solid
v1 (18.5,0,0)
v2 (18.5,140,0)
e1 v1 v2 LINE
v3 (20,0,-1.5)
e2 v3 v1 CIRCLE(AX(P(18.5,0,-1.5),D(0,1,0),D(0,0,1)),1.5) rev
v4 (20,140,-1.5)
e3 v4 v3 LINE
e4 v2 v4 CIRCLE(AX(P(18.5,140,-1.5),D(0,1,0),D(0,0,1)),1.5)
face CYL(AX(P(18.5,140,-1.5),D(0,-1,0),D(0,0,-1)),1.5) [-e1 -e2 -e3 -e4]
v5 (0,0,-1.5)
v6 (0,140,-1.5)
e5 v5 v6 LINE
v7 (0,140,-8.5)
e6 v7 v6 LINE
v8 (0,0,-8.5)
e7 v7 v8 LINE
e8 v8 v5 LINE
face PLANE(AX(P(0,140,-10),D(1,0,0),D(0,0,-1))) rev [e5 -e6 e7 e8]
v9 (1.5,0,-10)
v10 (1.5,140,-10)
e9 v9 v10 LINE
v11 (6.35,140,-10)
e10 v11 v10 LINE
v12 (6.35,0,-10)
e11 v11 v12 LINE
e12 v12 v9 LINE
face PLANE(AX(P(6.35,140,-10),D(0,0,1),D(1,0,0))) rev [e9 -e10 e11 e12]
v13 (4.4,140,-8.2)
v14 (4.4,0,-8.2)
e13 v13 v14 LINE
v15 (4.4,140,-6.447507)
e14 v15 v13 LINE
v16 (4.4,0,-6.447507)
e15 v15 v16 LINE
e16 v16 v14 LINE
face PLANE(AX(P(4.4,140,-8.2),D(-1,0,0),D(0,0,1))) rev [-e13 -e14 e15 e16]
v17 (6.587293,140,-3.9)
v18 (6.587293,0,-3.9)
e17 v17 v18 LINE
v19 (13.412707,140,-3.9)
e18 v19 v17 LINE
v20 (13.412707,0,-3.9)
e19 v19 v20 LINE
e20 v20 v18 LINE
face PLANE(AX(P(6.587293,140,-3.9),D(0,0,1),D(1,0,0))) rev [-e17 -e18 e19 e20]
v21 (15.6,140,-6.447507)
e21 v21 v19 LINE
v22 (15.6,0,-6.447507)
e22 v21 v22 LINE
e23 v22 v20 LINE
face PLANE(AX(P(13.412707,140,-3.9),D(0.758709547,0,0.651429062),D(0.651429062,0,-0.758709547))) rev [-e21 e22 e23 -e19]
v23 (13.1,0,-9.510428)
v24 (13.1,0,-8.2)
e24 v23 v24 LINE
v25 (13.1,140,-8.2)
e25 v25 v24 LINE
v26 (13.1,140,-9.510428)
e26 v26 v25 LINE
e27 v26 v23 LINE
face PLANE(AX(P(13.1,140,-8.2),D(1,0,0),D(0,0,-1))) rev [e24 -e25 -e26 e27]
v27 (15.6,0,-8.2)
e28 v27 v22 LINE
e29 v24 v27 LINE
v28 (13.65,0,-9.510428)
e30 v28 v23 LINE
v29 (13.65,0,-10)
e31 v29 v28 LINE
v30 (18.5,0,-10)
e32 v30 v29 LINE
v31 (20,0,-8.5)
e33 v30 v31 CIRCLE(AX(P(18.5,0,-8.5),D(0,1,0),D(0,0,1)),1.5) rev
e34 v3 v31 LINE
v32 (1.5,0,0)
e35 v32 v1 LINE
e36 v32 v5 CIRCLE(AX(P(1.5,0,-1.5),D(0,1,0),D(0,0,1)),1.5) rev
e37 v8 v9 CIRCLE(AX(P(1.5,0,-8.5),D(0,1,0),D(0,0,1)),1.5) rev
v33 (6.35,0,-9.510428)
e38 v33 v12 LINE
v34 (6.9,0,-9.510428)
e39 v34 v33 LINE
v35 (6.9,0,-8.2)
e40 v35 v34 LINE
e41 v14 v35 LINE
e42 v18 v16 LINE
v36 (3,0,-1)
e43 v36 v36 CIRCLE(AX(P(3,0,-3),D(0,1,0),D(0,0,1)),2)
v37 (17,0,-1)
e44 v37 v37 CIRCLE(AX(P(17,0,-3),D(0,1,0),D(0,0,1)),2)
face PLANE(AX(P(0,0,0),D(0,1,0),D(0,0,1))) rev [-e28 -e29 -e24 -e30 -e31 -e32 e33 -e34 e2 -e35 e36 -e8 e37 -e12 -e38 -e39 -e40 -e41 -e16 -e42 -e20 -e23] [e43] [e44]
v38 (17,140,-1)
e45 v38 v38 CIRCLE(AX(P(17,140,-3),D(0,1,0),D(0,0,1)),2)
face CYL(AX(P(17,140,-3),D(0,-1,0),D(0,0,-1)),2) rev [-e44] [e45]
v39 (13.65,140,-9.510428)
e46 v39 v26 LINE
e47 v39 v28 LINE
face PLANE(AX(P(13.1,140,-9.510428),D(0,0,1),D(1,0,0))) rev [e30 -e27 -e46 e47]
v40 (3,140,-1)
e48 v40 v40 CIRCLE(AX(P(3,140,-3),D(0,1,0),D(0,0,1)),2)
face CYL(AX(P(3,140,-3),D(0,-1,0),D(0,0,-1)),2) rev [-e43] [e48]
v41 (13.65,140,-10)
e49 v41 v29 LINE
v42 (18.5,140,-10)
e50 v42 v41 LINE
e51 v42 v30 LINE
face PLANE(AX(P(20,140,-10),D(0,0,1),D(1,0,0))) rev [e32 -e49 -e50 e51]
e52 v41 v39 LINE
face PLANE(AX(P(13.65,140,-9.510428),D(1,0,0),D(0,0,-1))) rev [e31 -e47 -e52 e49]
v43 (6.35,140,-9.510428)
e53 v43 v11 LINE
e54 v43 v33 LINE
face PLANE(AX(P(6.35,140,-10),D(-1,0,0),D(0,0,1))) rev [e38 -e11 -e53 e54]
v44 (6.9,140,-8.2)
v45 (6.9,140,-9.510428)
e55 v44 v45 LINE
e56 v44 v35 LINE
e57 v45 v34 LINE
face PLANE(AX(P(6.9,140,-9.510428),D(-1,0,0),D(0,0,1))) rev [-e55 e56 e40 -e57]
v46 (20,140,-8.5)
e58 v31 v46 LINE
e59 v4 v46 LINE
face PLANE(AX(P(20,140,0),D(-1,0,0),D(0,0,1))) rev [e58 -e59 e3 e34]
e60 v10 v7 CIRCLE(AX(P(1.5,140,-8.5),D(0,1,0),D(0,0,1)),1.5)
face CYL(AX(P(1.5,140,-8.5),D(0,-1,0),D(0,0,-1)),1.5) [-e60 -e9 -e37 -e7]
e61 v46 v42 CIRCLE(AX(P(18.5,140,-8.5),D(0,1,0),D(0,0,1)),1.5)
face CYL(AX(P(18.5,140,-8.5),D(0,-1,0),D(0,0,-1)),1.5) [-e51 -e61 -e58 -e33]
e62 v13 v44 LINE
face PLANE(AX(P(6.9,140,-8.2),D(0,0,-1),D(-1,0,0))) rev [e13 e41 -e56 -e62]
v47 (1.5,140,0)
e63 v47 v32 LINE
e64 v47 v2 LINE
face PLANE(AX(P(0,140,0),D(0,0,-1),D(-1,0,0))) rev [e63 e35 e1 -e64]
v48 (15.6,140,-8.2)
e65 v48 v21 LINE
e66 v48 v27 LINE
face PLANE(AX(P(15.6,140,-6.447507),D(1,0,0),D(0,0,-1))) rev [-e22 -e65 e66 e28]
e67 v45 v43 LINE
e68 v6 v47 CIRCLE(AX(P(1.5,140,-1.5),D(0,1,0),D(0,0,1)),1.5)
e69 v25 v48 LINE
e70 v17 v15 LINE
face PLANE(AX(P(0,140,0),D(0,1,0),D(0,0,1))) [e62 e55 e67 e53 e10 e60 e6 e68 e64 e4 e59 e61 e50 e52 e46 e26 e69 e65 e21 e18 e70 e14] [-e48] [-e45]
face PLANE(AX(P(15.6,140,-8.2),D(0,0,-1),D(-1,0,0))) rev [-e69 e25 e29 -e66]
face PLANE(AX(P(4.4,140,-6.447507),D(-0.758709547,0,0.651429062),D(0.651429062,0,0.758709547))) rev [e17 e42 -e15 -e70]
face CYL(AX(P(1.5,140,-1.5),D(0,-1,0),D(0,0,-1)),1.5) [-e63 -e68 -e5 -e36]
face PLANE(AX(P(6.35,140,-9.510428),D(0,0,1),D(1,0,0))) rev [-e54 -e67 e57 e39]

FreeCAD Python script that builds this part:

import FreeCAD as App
import Part
import Sketcher

V = App.Vector


def edges_at(feature, points):
    """Names of the edges that pass closest to the given points."""
    edges = feature.Shape.Edges
    near = lambda p: min(range(len(edges)), key=lambda i: edges[i].distToShape(Part.Vertex(*p))[0])
    return sorted({f"Edge{near(p) + 1}" for p in points})

doc = App.newDocument("Part")
body = doc.addObject("PartDesign::Body", "Body")

# Sketch on XZ plane
sketch1 = body.newObject("Sketcher::SketchObject", "Sketch")
sketch1.AttachmentSupport = (doc.getObject("XZ_Plane"), [""])
sketch1.MapMode = "FlatFace"
sketch1.addGeometry([
    Part.LineSegment(V(0, 0, 0), V(20, 0, 0)),  # 0
    Part.LineSegment(V(20, 0, 0), V(20, -10, 0)),  # 1
    Part.LineSegment(V(20, -10, 0), V(13.65, -10, 0)),  # 2
    Part.LineSegment(V(13.65, -10, 0), V(13.65, -9.51, 0)),  # 3
    Part.LineSegment(V(13.65, -9.51, 0), V(13.1, -9.51, 0)),  # 4
    Part.LineSegment(V(13.1, -9.51, 0), V(13.1, -8.2, 0)),  # 5
    Part.LineSegment(V(13.1, -8.2, 0), V(15.6, -8.2, 0)),  # 6
    Part.LineSegment(V(15.6, -8.2, 0), V(15.6, -6.45, 0)),  # 7
    Part.LineSegment(V(15.6, -6.45, 0), V(13.41, -3.9, 0)),  # 8
    Part.LineSegment(V(13.41, -3.9, 0), V(6.59, -3.9, 0)),  # 9
    Part.LineSegment(V(6.59, -3.9, 0), V(4.4, -6.45, 0)),  # 10
    Part.LineSegment(V(4.4, -6.45, 0), V(4.4, -8.2, 0)),  # 11
    Part.LineSegment(V(4.4, -8.2, 0), V(6.9, -8.2, 0)),  # 12
    Part.LineSegment(V(6.9, -8.2, 0), V(6.9, -9.51, 0)),  # 13
    Part.LineSegment(V(6.9, -9.51, 0), V(6.35, -9.51, 0)),  # 14
    Part.LineSegment(V(6.35, -9.51, 0), V(6.35, -10, 0)),  # 15
    Part.LineSegment(V(6.35, -10, 0), V(0, -10, 0)),  # 16
    Part.LineSegment(V(0, -10, 0), V(0, 0, 0)),  # 17
    Part.Circle(V(3, -3, 0), V(0, 0, 1), 2),  # 18
    Part.Circle(V(17, -3, 0), V(0, 0, 1), 2),  # 19
], False)
sketch1.addConstraint([
    Sketcher.Constraint("Coincident", 0, 2, 1, 1),
    Sketcher.Constraint("Coincident", 1, 2, 2, 1),
    Sketcher.Constraint("Coincident", 2, 2, 3, 1),
    Sketcher.Constraint("Coincident", 3, 2, 4, 1),
    Sketcher.Constraint("Coincident", 4, 2, 5, 1),
    Sketcher.Constraint("Coincident", 5, 2, 6, 1),
    Sketcher.Constraint("Coincident", 6, 2, 7, 1),
    Sketcher.Constraint("Coincident", 7, 2, 8, 1),
    Sketcher.Constraint("Coincident", 8, 2, 9, 1),
    Sketcher.Constraint("Coincident", 9, 2, 10, 1),
    Sketcher.Constraint("Coincident", 10, 2, 11, 1),
    Sketcher.Constraint("Coincident", 11, 2, 12, 1),
    Sketcher.Constraint("Coincident", 12, 2, 13, 1),
    Sketcher.Constraint("Coincident", 13, 2, 14, 1),
    Sketcher.Constraint("Coincident", 14, 2, 15, 1),
    Sketcher.Constraint("Coincident", 15, 2, 16, 1),
    Sketcher.Constraint("Coincident", 16, 2, 17, 1),
    Sketcher.Constraint("Coincident", 17, 2, 0, 1),
    Sketcher.Constraint("Horizontal", 0),
    Sketcher.Constraint("Vertical", 1),
    Sketcher.Constraint("Horizontal", 2),
    Sketcher.Constraint("Vertical", 3),
    Sketcher.Constraint("Horizontal", 4),
    Sketcher.Constraint("Vertical", 5),
    Sketcher.Constraint("Horizontal", 6),
    Sketcher.Constraint("Vertical", 7),
    Sketcher.Constraint("Horizontal", 9),
    Sketcher.Constraint("Vertical", 11),
    Sketcher.Constraint("Horizontal", 12),
    Sketcher.Constraint("Vertical", 13),
    Sketcher.Constraint("Horizontal", 14),
    Sketcher.Constraint("Vertical", 15),
    Sketcher.Constraint("Horizontal", 16),
    Sketcher.Constraint("Vertical", 17),
    Sketcher.Constraint("Coincident", 17, 2, -1, 1),
    Sketcher.Constraint("Equal", 18, 19),
    Sketcher.Constraint("Horizontal", 18, 3, 19, 3),
    Sketcher.Constraint("Horizontal", 7, 2, 10, 2),
    Sketcher.Constraint("Horizontal", 6, 2, 11, 2),
    Sketcher.Constraint("Horizontal", 4, 2, 13, 2),
    Sketcher.Constraint("Horizontal", 2, 2, 15, 2),
    Sketcher.Constraint("Equal", 6, 12),
    Sketcher.Constraint("Equal", 4, 14),
    Sketcher.Constraint("Equal", 2, 16),
    Sketcher.Constraint("Equal", 8, 10),
    Sketcher.Constraint("Diameter", 18, 4.0),
    Sketcher.Constraint("DistanceX", 0, 1, 0, 2, 20.0),
    Sketcher.Constraint("DistanceY", 1, 2, 1, 1, 10.0),
    Sketcher.Constraint("DistanceX", 6, 1, 6, 2, 2.5),
    Sketcher.Constraint("DistanceX", -1, 1, 18, 3, 3.0),
    Sketcher.Constraint("DistanceY", 18, 3, -1, 1, 3.0),
    Sketcher.Constraint("DistanceX", -1, 1, 19, 3, 17.0),
    Sketcher.Constraint("DistanceX", 2, 2, 2, 1, 6.35),
    Sketcher.Constraint("DistanceX", 4, 2, 4, 1, 0.55),
    Sketcher.Constraint("DistanceY", 5, 2, -1, 1, 8.2),
    Sketcher.Constraint("DistanceY", 8, 2, -1, 1, 3.9),
    Sketcher.Constraint("DistanceX", 9, 2, 9, 1, 6.825414),
    Sketcher.Constraint("DistanceY", 3, 1, 3, 2, 0.489572),
    Sketcher.Constraint("DistanceY", 7, 1, 7, 2, 1.752493),
])
pad1 = body.newObject("PartDesign::Pad", "Pad")
pad1.Profile = sketch1
pad1.Length = 140
pad1.Reversed = True
doc.recompute()

fillet = body.newObject("PartDesign::Fillet", "Fillet")
fillet.Base = (pad1, edges_at(pad1, [
    (0, 70, -10),
    (20, 70, -10),
    (20, 70, 0),
    (0, 70, 0),
]))
fillet.Radius = 1.5

doc.recompute()
